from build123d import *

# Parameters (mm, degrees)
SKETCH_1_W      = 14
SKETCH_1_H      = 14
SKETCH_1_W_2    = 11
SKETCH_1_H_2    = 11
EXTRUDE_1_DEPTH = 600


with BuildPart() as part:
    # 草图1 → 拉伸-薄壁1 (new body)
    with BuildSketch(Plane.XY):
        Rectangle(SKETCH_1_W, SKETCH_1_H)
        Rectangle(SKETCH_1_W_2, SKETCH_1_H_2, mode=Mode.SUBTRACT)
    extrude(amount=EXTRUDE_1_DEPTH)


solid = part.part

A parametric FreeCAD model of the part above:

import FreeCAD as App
import Part
import Sketcher


def add_polygon(sketch, points):
    """Adds a closed chain of lines whose ends are joined by coincident constraints."""
    first, n = sketch.GeometryCount, len(points)
    for a, b in zip(points, points[1:] + points[:1]):
        sketch.addGeometry(Part.LineSegment(App.Vector(*a, 0), App.Vector(*b, 0)), False)
    for i in range(n):
        sketch.addConstraint(Sketcher.Constraint("Coincident", first + i, 2, first + (i + 1) % n, 1))

doc = App.newDocument("Part")
body = doc.addObject("PartDesign::Body", "Body")

# Sketch on XY plane
sketch1 = body.newObject("Sketcher::SketchObject", "Sketch")
sketch1.AttachmentSupport = (doc.getObject("XY_Plane"), [""])
sketch1.MapMode = "FlatFace"
add_polygon(sketch1, [(-7, 7), (-7, -7), (7, -7), (7, 7)])  # lines 0-3
add_polygon(sketch1, [(6, -6), (-6, -6), (-6, 6), (6, 6)])  # lines 4-7
sketch1.addConstraint(Sketcher.Constraint("Vertical", 0))
sketch1.addConstraint(Sketcher.Constraint("Horizontal", 1))
sketch1.addConstraint(Sketcher.Constraint("Vertical", 2))
sketch1.addConstraint(Sketcher.Constraint("Horizontal", 3))
sketch1.addConstraint(Sketcher.Constraint("Horizontal", 4))
sketch1.addConstraint(Sketcher.Constraint("Vertical", 5))
sketch1.addConstraint(Sketcher.Constraint("Horizontal", 6))
sketch1.addConstraint(Sketcher.Constraint("Vertical", 7))
sketch1.addConstraint(Sketcher.Constraint("Symmetric", 0, 2, 2, 2, -1, 1))
sketch1.addConstraint(Sketcher.Constraint("Symmetric", 4, 2, 6, 2, -1, 1))
sketch1.addConstraint(Sketcher.Constraint("Equal", 3, 0))
sketch1.addConstraint(Sketcher.Constraint("Equal", 6, 5))
sketch1.addConstraint(Sketcher.Constraint("DistanceX", 1, 1, 1, 2, 14.0))
sketch1.addConstraint(Sketcher.Constraint("DistanceX", 4, 2, 4, 1, 11.0))
pad1 = body.newObject("PartDesign::Pad", "Pad")
pad1.Profile = sketch1
pad1.Length = 600

doc.recompute()
